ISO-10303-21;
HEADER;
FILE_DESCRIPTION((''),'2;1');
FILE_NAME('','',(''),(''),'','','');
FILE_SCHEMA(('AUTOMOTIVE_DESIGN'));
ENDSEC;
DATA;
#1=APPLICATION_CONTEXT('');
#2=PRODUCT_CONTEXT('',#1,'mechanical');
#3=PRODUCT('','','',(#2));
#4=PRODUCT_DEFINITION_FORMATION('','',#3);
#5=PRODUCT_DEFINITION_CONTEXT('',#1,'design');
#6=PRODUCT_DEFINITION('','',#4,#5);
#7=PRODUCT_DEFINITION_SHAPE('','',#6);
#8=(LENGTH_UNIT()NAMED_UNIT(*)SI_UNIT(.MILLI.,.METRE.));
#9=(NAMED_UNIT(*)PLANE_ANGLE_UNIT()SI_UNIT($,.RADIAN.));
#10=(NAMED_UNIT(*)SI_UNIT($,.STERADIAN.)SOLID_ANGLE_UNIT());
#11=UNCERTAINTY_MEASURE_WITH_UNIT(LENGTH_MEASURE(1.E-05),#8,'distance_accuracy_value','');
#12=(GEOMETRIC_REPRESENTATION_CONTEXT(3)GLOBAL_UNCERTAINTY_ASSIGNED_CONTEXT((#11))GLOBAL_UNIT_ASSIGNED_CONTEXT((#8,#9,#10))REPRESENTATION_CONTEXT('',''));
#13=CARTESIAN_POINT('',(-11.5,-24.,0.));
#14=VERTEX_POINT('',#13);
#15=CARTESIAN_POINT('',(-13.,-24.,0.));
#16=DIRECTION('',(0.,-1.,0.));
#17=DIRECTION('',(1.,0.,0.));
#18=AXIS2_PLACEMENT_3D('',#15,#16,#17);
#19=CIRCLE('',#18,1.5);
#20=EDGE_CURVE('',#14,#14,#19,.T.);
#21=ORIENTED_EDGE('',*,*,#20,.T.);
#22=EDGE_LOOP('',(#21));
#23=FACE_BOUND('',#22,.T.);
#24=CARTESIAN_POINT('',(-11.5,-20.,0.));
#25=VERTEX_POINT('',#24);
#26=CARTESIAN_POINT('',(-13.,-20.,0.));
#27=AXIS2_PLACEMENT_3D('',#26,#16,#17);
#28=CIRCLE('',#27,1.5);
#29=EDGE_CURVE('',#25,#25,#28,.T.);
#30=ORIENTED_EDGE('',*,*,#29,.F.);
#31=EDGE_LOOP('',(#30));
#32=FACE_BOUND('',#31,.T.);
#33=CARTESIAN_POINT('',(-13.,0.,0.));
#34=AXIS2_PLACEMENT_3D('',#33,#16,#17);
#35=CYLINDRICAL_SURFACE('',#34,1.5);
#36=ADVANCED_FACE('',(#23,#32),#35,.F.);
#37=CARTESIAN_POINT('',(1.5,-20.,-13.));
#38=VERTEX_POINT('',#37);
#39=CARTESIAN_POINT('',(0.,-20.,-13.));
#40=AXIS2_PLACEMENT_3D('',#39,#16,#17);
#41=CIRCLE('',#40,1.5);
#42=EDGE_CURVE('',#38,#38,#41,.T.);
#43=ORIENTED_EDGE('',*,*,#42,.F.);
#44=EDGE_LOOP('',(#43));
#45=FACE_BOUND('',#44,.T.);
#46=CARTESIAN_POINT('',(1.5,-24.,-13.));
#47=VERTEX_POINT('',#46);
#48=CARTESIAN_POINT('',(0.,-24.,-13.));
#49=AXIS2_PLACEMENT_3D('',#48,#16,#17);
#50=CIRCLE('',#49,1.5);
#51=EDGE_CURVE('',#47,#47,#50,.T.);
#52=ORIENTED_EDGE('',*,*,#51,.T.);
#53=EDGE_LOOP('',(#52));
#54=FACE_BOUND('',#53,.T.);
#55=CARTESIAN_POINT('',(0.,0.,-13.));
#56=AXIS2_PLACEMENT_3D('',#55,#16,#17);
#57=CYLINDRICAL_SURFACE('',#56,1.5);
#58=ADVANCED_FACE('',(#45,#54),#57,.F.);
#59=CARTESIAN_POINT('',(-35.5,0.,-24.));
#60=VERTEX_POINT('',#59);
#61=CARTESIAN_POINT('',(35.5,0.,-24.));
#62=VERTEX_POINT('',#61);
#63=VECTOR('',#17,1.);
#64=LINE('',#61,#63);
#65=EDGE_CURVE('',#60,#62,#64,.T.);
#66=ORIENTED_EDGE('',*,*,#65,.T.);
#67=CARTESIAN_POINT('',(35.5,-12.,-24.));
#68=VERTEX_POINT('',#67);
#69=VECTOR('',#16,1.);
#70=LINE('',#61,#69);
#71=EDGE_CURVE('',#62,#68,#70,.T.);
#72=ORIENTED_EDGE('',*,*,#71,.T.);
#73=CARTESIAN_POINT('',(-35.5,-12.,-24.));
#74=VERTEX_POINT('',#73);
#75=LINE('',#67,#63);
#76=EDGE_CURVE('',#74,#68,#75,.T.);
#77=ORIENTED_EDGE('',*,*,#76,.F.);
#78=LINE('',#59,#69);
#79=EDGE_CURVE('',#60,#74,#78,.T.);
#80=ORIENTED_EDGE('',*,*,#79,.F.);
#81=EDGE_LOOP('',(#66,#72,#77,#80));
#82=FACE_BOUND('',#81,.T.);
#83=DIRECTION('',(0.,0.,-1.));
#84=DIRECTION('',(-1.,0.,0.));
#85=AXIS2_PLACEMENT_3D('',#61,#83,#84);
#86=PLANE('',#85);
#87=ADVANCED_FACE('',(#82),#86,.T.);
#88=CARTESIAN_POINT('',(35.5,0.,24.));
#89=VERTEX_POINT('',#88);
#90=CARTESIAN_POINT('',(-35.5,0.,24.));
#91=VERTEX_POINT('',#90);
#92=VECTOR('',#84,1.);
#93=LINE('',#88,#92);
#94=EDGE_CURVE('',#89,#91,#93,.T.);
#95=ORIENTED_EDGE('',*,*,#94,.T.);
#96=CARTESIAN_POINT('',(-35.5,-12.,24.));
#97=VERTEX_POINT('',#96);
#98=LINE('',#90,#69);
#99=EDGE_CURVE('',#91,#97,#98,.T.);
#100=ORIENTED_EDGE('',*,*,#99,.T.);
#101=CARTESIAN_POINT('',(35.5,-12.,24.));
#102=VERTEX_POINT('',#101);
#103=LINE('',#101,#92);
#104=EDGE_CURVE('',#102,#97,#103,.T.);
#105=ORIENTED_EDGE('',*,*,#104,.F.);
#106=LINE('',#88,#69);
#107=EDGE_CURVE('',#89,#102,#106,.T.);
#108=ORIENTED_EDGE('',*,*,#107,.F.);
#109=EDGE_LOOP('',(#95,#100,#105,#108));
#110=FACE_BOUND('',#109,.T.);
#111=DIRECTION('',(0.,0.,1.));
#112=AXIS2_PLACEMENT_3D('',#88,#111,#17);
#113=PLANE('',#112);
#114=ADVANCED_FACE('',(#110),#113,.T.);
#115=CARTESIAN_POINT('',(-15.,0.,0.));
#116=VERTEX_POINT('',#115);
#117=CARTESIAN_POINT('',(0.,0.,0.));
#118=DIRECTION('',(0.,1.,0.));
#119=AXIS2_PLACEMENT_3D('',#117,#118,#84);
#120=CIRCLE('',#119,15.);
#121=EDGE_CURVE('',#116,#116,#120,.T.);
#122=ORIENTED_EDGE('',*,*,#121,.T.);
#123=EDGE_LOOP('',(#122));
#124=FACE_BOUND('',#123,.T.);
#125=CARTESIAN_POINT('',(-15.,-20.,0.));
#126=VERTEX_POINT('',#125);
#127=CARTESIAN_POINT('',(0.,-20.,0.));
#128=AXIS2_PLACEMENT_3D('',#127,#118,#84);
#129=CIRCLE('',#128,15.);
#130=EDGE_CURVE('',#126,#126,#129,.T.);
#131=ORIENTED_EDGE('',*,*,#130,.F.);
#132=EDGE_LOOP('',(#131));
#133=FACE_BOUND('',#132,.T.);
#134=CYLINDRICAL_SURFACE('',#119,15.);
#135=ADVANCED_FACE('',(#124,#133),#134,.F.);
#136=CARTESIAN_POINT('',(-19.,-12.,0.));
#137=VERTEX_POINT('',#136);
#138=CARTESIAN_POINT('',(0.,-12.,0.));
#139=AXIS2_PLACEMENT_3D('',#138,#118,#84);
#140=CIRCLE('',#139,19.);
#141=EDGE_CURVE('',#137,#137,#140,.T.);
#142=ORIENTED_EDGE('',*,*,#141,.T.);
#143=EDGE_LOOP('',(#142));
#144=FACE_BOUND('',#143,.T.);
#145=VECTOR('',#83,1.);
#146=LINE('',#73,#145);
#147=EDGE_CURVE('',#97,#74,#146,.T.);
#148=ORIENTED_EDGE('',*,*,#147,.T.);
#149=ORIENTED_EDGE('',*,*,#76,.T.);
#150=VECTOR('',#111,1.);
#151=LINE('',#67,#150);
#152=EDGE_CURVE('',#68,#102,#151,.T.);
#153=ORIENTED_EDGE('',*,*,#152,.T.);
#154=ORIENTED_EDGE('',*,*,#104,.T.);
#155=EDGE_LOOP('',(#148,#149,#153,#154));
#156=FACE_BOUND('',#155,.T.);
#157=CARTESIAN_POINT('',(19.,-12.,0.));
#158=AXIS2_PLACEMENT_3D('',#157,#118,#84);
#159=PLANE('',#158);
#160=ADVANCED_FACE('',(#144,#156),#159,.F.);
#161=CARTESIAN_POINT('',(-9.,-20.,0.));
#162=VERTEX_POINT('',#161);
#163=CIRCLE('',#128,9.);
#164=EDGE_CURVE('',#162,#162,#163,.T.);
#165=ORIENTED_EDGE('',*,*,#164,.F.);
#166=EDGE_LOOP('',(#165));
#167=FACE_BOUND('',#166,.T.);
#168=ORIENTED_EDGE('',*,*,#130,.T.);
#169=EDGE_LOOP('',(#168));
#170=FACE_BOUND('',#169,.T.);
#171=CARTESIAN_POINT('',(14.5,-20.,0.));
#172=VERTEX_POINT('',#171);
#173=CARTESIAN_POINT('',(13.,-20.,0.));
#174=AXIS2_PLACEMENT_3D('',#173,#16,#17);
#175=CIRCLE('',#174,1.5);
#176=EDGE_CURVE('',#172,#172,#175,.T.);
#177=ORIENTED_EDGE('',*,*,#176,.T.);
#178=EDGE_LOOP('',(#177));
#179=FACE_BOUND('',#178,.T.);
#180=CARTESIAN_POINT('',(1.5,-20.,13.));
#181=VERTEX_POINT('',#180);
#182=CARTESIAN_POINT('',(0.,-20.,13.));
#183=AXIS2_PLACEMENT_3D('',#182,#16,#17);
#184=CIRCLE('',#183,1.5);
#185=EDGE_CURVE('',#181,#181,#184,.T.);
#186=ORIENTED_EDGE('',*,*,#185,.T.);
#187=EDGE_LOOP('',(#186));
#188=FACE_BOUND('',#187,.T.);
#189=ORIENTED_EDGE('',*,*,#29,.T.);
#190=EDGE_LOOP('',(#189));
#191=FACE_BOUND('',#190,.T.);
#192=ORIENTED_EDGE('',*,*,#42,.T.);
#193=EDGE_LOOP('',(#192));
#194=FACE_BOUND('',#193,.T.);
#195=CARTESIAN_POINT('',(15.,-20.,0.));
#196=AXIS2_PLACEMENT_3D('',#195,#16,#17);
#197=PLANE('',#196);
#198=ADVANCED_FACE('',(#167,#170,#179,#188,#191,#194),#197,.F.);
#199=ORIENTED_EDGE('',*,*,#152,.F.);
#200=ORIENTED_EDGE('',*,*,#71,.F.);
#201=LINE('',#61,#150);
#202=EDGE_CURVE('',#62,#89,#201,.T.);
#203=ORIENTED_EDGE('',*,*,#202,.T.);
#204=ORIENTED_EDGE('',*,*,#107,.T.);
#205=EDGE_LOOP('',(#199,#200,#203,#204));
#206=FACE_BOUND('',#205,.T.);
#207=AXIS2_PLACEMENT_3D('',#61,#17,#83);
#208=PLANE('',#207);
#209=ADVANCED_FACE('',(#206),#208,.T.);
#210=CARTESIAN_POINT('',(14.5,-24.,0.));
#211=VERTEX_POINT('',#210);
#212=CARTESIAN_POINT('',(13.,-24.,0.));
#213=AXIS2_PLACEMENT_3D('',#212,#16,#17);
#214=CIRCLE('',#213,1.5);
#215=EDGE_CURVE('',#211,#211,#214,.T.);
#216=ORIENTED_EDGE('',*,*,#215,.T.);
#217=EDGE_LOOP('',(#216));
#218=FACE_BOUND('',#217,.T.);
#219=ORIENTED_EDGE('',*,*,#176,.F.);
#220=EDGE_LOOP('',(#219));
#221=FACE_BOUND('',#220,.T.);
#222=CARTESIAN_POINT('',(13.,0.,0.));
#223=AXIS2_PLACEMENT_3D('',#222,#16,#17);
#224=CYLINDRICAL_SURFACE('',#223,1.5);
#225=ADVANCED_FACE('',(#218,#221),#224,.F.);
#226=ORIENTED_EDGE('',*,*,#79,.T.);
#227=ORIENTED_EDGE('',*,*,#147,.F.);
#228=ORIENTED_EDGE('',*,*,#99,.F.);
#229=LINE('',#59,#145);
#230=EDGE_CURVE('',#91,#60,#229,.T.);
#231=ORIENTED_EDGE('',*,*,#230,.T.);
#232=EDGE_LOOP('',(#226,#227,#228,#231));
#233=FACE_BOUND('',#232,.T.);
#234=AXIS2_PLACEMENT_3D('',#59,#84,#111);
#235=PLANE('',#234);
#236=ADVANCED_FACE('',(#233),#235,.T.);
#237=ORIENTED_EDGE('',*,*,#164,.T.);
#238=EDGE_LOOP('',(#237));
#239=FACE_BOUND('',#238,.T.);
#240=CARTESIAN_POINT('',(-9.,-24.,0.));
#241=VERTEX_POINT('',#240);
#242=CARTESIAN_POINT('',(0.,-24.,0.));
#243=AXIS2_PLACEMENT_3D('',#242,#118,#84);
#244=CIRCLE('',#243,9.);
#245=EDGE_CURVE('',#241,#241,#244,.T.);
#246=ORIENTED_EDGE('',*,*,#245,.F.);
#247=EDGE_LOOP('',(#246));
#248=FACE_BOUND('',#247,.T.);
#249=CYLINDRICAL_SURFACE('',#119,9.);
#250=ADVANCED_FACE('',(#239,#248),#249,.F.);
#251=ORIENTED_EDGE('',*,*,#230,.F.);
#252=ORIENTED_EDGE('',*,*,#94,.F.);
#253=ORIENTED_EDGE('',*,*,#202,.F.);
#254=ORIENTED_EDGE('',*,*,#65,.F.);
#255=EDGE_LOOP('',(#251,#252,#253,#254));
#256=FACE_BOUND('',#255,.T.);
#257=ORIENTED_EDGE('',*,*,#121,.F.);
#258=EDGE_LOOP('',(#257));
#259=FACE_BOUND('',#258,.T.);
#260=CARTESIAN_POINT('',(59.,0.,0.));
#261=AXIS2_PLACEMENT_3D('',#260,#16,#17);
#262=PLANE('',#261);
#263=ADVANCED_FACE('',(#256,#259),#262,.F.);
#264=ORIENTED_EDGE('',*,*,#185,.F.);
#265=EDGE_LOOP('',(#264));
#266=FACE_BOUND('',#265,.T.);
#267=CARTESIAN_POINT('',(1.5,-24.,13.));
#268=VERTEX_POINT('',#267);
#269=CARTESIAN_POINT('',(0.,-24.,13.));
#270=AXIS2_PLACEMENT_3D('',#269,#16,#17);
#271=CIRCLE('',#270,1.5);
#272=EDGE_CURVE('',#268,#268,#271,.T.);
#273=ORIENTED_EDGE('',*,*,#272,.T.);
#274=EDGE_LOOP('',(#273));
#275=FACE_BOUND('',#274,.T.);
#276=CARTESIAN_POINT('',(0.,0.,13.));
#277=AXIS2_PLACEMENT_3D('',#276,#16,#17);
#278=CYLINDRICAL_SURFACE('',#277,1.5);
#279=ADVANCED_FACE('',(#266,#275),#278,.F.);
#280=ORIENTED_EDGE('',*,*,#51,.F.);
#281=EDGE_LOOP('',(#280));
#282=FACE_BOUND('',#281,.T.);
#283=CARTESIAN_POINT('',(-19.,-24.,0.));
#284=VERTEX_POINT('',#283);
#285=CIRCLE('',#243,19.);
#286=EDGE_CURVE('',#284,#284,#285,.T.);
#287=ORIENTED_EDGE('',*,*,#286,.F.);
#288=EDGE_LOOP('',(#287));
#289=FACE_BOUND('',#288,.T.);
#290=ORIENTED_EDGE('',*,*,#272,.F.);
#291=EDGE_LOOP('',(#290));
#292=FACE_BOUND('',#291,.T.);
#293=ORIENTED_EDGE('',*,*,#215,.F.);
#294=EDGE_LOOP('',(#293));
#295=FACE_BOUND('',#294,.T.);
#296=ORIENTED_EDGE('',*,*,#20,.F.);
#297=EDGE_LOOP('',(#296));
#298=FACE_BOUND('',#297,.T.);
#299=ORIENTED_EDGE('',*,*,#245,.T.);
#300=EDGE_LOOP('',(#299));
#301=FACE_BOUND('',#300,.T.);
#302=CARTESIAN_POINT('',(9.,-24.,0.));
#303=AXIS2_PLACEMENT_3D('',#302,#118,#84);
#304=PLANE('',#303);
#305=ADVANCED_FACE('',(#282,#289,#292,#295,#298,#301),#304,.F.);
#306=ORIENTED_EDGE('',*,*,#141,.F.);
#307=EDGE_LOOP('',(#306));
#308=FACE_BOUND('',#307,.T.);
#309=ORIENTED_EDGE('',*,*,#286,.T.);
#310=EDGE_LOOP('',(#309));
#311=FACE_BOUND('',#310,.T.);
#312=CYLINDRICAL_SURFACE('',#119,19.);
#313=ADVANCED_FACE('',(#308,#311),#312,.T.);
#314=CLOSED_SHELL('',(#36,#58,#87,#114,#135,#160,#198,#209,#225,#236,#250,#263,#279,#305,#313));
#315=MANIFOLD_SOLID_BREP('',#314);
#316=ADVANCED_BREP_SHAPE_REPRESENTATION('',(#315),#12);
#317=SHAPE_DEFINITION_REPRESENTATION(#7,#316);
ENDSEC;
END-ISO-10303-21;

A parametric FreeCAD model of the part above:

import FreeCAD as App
import Part
import Sketcher

V = App.Vector


def add_polygon(sketch, points):
    """Adds a closed chain of lines whose ends are joined by coincident constraints."""
    first, n = sketch.GeometryCount, len(points)
    for a, b in zip(points, points[1:] + points[:1]):
        sketch.addGeometry(Part.LineSegment(App.Vector(*a, 0), App.Vector(*b, 0)), False)
    for i in range(n):
        sketch.addConstraint(Sketcher.Constraint("Coincident", first + i, 2, first + (i + 1) % n, 1))

doc = App.newDocument("Part")
body = doc.addObject("PartDesign::Body", "Body")

# Sketch on XY plane
sketch1 = body.newObject("Sketcher::SketchObject", "Sketch")
sketch1.AttachmentSupport = (doc.getObject("XY_Plane"), [""])
sketch1.MapMode = "FlatFace"
add_polygon(sketch1, [(19, -12), (59, -12), (59, 0), (15, 0), (15, -20), (9, -20), (9, -24), (19, -24)])  # lines 0-7
sketch1.addConstraint([
    Sketcher.Constraint("Horizontal", 0),
    Sketcher.Constraint("Vertical", 1),
    Sketcher.Constraint("Horizontal", 2),
    Sketcher.Constraint("Vertical", 3),
    Sketcher.Constraint("Horizontal", 4),
    Sketcher.Constraint("Vertical", 5),
    Sketcher.Constraint("Horizontal", 6),
    Sketcher.Constraint("Vertical", 7),
    Sketcher.Constraint("PointOnObject", 1, 2, -1),
    Sketcher.Constraint("Equal", 1, 7),
    Sketcher.Constraint("DistanceX", 0, 1, 0, 2, 40.0),
    Sketcher.Constraint("DistanceX", 2, 2, 2, 1, 44.0),
    Sketcher.Constraint("DistanceX", 4, 2, 4, 1, 6.0),
    Sketcher.Constraint("DistanceY", 1, 1, 1, 2, 12.0),
    Sketcher.Constraint("DistanceY", 3, 2, 3, 1, 20.0),
    Sketcher.Constraint("DistanceX", -1, 1, 0, 2, 59.0),
])
revolution = body.newObject("PartDesign::Revolution", "Revolution")
revolution.Profile = sketch1
revolution.ReferenceAxis = (sketch1, ["V_Axis"])
revolution.Angle = 360

# Sketch on XZ plane
sketch2 = body.newObject("Sketcher::SketchObject", "Sketch001")
sketch2.AttachmentSupport = (doc.getObject("XZ_Plane"), [""])
sketch2.MapMode = "FlatFace"
sketch2.AttachmentOffset = App.Placement(V(0, 0, 24), App.Rotation())
sketch2.addGeometry([
    Part.Circle(V(0, 13, 0), V(0, 0, 1), 1.5),
    Part.Circle(V(13, 0, 0), V(0, 0, 1), 1.5),
    Part.Circle(V(0, -13, 0), V(0, 0, 1), 1.5),
    Part.Circle(V(-13, 0, 0), V(0, 0, 1), 1.5),
], False)
sketch2.addConstraint([
    Sketcher.Constraint("Equal", 0, 1),
    Sketcher.Constraint("Equal", 1, 2),
    Sketcher.Constraint("Equal", 2, 3),
    Sketcher.Constraint("Symmetric", 0, 3, 2, 3, -1, 1),
    Sketcher.Constraint("Symmetric", 1, 3, 3, 3, -1, 1),
    Sketcher.Constraint("PointOnObject", 0, 3, -2),
    Sketcher.Constraint("PointOnObject", 1, 3, -1),
    Sketcher.Constraint("Diameter", 0, 3.0),
    Sketcher.Constraint("DistanceY", -1, 1, 0, 3, 13.0),
    Sketcher.Constraint("DistanceX", -1, 1, 1, 3, 13.0),
])
pocket1 = body.newObject("PartDesign::Pocket", "Pocket")
pocket1.Profile = sketch2
pocket1.Type = "ThroughAll"

# Sketch on XZ plane
sketch3 = body.newObject("Sketcher::SketchObject", "Sketch002")
sketch3.AttachmentSupport = (doc.getObject("XZ_Plane"), [""])
sketch3.MapMode = "FlatFace"
sketch3.AttachmentOffset = App.Placement(V(0, 0, 12), App.Rotation())
add_polygon(sketch3, [(-76.859, 76.859), (-76.859, -76.859), (76.859, -76.859), (76.859, 76.859)])  # lines 0-3
add_polygon(sketch3, [(35.5, -24), (-35.5, -24), (-35.5, 24), (35.5, 24)])  # lines 4-7
sketch3.addConstraint([
    Sketcher.Constraint("Vertical", 0),
    Sketcher.Constraint("Horizontal", 1),
    Sketcher.Constraint("Vertical", 2),
    Sketcher.Constraint("Horizontal", 3),
    Sketcher.Constraint("Horizontal", 4),
    Sketcher.Constraint("Vertical", 5),
    Sketcher.Constraint("Horizontal", 6),
    Sketcher.Constraint("Vertical", 7),
    Sketcher.Constraint("Symmetric", 0, 2, 2, 2, -1, 1),
    Sketcher.Constraint("Symmetric", 4, 2, 6, 2, -1, 1),
    Sketcher.Constraint("Equal", 3, 0),
    Sketcher.Constraint("DistanceX", 4, 2, 4, 1, 71.0),
    Sketcher.Constraint("DistanceY", 5, 1, 5, 2, 48.0),
    Sketcher.Constraint("DistanceX", 1, 1, 1, 2, 153.718),
])
pocket2 = body.newObject("PartDesign::Pocket", "Pocket001")
pocket2.Profile = sketch3
pocket2.Type = "ThroughAll"

doc.recompute()
